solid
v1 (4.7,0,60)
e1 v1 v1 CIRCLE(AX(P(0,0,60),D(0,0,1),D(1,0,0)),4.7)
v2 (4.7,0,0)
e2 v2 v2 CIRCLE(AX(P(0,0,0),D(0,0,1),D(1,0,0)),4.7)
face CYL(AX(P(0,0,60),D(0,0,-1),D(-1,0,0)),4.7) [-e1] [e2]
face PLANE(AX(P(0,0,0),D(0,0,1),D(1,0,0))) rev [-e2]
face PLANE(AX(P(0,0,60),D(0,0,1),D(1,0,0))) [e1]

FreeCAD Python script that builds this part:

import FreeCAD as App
import Part
import Sketcher
from FreeCAD import Vector
Q = App.Units.Quantity

doc = App.newDocument("Part")
body = doc.addObject("PartDesign::Body", "Body")

sketch1 = doc.addObject("Sketcher::SketchObject", "Sketch")
body.addObject(sketch1)
sketch1.AttachmentSupport = (doc.XY_Plane, [""])
sketch1.MapMode = "FlatFace"
sketch1.addGeometry(Part.Circle(Vector(0, 0, 0), Vector(0, 0, 1), 4.7), False)
sketch1.addConstraint([
    Sketcher.Constraint("Coincident", 0, 3, -1, 1),
    Sketcher.Constraint("Diameter", 0, Q("9.4 mm")),
])
pad1 = doc.addObject("PartDesign::Pad", "Pad")
body.addObject(pad1)
pad1.Profile = sketch1
pad1.Length = 60

doc.recompute()
